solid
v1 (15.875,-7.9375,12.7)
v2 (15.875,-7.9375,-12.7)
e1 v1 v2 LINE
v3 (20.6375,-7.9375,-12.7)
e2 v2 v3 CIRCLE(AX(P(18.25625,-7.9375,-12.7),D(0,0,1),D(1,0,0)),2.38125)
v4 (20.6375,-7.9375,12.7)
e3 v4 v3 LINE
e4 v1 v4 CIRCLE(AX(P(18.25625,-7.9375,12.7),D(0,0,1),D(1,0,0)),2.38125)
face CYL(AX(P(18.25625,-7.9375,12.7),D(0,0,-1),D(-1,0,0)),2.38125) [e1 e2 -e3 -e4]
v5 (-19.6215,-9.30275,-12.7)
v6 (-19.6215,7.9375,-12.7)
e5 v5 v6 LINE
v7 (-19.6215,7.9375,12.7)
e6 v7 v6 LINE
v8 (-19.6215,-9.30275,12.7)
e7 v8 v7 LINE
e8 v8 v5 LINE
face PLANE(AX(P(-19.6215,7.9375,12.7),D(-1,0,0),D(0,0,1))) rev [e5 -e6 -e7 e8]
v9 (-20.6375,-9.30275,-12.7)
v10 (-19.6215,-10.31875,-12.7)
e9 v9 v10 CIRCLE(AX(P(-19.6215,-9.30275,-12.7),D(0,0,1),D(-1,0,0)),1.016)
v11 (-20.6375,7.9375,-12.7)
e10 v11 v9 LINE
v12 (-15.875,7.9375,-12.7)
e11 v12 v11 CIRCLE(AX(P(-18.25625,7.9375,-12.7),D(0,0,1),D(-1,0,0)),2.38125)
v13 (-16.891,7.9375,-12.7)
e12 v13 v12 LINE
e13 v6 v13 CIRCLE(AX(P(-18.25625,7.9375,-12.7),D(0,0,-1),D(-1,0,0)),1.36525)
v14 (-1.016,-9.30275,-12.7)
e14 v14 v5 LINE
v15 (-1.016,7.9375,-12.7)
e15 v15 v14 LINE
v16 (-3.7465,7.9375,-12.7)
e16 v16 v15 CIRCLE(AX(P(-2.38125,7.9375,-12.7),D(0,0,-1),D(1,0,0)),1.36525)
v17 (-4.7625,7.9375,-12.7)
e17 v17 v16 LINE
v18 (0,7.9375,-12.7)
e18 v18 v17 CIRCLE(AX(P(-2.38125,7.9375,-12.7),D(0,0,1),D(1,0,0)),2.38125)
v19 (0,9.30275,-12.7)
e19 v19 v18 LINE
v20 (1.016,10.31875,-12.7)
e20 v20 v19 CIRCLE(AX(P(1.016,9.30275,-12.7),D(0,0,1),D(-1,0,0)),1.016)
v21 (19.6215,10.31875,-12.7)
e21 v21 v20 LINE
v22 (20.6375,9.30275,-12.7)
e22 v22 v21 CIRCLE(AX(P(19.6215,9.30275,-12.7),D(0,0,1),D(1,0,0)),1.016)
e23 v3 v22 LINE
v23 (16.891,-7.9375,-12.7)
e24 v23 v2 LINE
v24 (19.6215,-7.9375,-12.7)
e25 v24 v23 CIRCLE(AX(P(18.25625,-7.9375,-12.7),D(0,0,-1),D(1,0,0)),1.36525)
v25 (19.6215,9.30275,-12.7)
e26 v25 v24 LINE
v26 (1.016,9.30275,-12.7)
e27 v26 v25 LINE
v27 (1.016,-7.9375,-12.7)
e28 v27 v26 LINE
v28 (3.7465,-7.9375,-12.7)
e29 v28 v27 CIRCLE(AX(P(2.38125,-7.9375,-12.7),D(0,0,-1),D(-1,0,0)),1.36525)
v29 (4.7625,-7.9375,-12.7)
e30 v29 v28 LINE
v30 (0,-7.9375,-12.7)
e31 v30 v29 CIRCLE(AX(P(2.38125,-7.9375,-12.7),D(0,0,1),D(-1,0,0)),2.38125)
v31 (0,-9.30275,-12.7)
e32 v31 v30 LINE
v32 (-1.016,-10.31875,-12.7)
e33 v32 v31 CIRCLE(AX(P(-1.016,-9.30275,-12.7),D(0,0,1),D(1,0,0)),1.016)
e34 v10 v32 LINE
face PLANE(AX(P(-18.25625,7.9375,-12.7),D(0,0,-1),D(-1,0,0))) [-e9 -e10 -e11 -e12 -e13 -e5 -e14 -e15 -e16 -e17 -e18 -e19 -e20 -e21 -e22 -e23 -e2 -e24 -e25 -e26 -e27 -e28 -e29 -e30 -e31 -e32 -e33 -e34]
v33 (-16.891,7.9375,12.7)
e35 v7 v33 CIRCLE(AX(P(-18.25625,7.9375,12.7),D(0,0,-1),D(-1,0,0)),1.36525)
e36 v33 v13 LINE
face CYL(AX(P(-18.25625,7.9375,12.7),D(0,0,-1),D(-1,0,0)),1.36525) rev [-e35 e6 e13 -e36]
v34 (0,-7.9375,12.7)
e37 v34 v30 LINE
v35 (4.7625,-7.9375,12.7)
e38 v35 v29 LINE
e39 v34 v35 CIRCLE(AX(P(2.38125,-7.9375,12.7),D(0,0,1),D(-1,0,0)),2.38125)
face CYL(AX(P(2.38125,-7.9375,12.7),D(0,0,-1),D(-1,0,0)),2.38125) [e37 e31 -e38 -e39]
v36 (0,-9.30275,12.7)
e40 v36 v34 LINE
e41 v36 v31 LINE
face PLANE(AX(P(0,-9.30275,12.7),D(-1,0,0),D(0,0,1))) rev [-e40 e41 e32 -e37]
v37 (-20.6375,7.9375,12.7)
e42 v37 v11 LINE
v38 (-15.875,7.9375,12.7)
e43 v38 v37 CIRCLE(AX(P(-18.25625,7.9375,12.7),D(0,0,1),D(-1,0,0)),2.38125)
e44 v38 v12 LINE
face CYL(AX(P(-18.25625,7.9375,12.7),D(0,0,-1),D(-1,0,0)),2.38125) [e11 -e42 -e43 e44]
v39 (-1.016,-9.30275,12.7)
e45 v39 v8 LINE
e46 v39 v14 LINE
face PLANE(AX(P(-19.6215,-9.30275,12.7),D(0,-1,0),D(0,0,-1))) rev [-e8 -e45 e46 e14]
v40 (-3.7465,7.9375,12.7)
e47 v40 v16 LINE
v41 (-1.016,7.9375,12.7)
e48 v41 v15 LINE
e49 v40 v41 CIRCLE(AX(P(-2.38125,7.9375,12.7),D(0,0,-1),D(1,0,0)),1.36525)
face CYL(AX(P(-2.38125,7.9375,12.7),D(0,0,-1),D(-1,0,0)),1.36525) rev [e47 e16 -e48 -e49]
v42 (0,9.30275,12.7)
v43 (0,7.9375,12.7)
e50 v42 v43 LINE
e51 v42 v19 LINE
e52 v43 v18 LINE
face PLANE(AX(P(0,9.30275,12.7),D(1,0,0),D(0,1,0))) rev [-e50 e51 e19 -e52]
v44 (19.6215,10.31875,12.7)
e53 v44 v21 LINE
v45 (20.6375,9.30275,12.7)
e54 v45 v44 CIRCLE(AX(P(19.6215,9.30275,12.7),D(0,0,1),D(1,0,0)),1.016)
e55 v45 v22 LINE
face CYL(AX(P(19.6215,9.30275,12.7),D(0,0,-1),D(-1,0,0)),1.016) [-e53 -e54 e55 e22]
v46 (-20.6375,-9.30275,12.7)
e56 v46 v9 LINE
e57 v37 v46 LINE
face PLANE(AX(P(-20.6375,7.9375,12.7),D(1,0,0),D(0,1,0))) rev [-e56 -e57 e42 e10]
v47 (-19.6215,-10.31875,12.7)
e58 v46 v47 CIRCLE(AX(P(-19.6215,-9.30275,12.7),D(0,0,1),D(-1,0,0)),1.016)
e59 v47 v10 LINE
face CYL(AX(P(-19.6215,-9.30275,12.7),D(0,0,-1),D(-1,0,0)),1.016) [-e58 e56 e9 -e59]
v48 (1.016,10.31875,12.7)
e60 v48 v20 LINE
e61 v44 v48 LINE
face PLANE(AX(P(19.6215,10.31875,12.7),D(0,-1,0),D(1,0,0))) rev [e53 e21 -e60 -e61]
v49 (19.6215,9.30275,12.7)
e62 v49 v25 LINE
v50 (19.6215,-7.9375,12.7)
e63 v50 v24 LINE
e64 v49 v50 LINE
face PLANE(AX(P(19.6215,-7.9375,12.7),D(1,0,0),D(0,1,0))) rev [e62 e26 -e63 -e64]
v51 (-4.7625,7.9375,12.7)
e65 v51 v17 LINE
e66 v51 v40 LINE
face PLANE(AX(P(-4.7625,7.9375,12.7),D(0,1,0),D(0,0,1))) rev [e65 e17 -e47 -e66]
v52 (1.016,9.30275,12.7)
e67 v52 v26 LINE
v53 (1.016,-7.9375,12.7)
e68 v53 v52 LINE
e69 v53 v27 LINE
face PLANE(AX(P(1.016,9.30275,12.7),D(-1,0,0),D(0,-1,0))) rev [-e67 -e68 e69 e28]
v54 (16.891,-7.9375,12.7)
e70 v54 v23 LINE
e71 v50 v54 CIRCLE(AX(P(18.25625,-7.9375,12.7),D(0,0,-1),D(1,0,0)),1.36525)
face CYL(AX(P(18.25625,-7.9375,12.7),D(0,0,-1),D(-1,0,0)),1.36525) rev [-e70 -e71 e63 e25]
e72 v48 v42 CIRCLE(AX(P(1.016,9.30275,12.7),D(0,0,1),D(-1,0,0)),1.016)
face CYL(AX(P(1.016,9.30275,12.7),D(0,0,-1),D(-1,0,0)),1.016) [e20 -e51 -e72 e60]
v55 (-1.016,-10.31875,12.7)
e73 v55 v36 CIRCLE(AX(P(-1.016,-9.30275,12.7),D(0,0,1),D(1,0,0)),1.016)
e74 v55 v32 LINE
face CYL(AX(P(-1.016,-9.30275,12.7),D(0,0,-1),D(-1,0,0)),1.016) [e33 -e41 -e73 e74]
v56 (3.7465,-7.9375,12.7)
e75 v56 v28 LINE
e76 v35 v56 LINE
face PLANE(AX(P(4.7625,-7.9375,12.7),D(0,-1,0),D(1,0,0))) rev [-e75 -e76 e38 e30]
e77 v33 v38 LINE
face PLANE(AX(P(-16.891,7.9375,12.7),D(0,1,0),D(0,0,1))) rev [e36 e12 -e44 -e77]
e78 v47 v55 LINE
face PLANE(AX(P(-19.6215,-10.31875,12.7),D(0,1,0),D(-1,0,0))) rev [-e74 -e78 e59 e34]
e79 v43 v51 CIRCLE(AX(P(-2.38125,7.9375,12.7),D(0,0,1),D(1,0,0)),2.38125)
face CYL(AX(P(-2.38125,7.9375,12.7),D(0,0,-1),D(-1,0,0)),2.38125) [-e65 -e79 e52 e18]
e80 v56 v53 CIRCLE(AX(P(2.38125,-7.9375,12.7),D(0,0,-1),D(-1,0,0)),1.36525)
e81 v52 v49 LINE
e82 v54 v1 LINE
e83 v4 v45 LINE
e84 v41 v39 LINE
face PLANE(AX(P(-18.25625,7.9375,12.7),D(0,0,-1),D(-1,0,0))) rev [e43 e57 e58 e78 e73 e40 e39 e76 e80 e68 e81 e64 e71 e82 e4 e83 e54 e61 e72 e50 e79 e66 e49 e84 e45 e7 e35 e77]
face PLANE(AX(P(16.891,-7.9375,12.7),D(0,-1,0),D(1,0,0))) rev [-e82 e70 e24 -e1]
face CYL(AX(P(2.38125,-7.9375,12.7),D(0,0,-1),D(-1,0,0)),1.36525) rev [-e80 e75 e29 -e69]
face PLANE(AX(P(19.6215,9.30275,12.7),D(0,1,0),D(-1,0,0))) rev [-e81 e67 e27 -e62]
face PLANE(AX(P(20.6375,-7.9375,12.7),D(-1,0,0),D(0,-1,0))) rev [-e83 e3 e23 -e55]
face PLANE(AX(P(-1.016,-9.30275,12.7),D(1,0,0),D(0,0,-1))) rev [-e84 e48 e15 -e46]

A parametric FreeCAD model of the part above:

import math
import FreeCAD as App
import Part
import Sketcher

V = App.Vector
Q = App.Units.Quantity

doc = App.newDocument("Part")
body = doc.addObject("PartDesign::Body", "Body")

# Sketch on XY plane
sketch1 = body.newObject("Sketcher::SketchObject", "Sketch")
sketch1.AttachmentSupport = (doc.getObject("XY_Plane"), [""])
sketch1.MapMode = "FlatFace"
sketch1.addGeometry([
    Part.LineSegment(V(-20.6, 7.9, 0), V(-20.6, -9.3, 0)),  # 0
    Part.ArcOfCircle(Part.Circle(V(-19.6, -9.3, 0), V(0, 0, 1), 1), math.radians(180), math.radians(270)),  # 1
    Part.LineSegment(V(-19.6, -10.3, 0), V(-1, -10.3, 0)),  # 2
    Part.ArcOfCircle(Part.Circle(V(-1, -9.3, 0), V(0, 0, 1), 1), math.radians(-90), math.radians(0)),  # 3
    Part.LineSegment(V(0, -9.3, 0), V(0, 7.9, 0)),  # 4
    Part.ArcOfCircle(Part.Circle(V(-2.4, 7.9, 0), V(0, 0, 1), 2.4), math.radians(0), math.radians(180)),  # 5
    Part.LineSegment(V(-4.8, 7.9, 0), V(-3.7, 7.9, 0)),  # 6
    Part.ArcOfCircle(Part.Circle(V(-2.4, 7.9, 0), V(0, 0, 1), 1.4), math.radians(0), math.radians(180)),  # 7
    Part.LineSegment(V(-1, 7.9, 0), V(-1, -9.3, 0)),  # 8
    Part.LineSegment(V(-1, -9.3, 0), V(-19.6, -9.3, 0)),  # 9
    Part.LineSegment(V(-19.6, -9.3, 0), V(-19.6, 7.9, 0)),  # 10
    Part.ArcOfCircle(Part.Circle(V(-18.3, 7.9, 0), V(0, 0, 1), 1.4), math.radians(0), math.radians(180)),  # 11
    Part.LineSegment(V(-16.9, 7.9, 0), V(-15.9, 7.9, 0)),  # 12
    Part.ArcOfCircle(Part.Circle(V(-18.3, 7.9, 0), V(0, 0, 1), 2.4), math.radians(0), math.radians(180)),  # 13
], False)
sketch1.addConstraint([
    Sketcher.Constraint("Tangent", 0, 2, 1, 1),
    Sketcher.Constraint("Tangent", 1, 2, 2, 1),
    Sketcher.Constraint("Tangent", 2, 2, 3, 1),
    Sketcher.Constraint("Tangent", 3, 2, 4, 1),
    Sketcher.Constraint("Tangent", 4, 2, 5, 1),
    Sketcher.Constraint("Coincident", 5, 2, 6, 1),
    Sketcher.Constraint("Coincident", 6, 2, 7, 2),
    Sketcher.Constraint("Tangent", 7, 1, 8, 1),
    Sketcher.Constraint("Coincident", 8, 2, 9, 1),
    Sketcher.Constraint("Coincident", 9, 2, 10, 1),
    Sketcher.Constraint("Tangent", 10, 2, 11, 2),
    Sketcher.Constraint("Coincident", 11, 1, 12, 1),
    Sketcher.Constraint("Coincident", 12, 2, 13, 1),
    Sketcher.Constraint("Tangent", 13, 2, 0, 1),
    Sketcher.Constraint("Vertical", 0),
    Sketcher.Constraint("Horizontal", 2),
    Sketcher.Constraint("Vertical", 4),
    Sketcher.Constraint("Horizontal", 6),
    Sketcher.Constraint("Vertical", 8),
    Sketcher.Constraint("Horizontal", 9),
    Sketcher.Constraint("Vertical", 10),
    Sketcher.Constraint("Horizontal", 12),
    Sketcher.Constraint("Coincident", 7, 3, 5, 3),
    Sketcher.Constraint("Coincident", 13, 3, 11, 3),
    Sketcher.Constraint("Coincident", 8, 2, 3, 3),
    Sketcher.Constraint("Coincident", 9, 2, 1, 3),
    Sketcher.Constraint("Equal", 7, 11),
    Sketcher.Constraint("PointOnObject", 3, 2, -2),
    Sketcher.Constraint("Horizontal", 7, 3, 11, 3),
    Sketcher.Constraint("Horizontal", 4, 2, 5, 2),
    Sketcher.Constraint("Horizontal", 10, 2, 11, 1),
    Sketcher.Constraint("Radius", 1, Q("0.04 in")),
    Sketcher.Constraint("Radius", 5, Q("0.09375 in")),
    Sketcher.Constraint("DistanceX", 2, 1, 2, 2, Q("0.7325 in")),
    Sketcher.Constraint("DistanceY", -1, 1, 5, 3, Q("0.3125 in")),
    Sketcher.Constraint("DistanceY", 1, 2, -1, 1, Q("0.40625 in")),
])
pad1 = body.newObject("PartDesign::Pad", "Pad")
pad1.Profile = sketch1
pad1.Length = Q("1 in")
pad1.Midplane = True
doc.recompute()

polarpattern = body.newObject("PartDesign::PolarPattern", "PolarPattern")
polarpattern.Originals = [pad1]
polarpattern.Axis = (doc.getObject("Z_Axis"), [""])
polarpattern.Angle = 360
polarpattern.Occurrences = 2
body.Tip = polarpattern

doc.recompute()
